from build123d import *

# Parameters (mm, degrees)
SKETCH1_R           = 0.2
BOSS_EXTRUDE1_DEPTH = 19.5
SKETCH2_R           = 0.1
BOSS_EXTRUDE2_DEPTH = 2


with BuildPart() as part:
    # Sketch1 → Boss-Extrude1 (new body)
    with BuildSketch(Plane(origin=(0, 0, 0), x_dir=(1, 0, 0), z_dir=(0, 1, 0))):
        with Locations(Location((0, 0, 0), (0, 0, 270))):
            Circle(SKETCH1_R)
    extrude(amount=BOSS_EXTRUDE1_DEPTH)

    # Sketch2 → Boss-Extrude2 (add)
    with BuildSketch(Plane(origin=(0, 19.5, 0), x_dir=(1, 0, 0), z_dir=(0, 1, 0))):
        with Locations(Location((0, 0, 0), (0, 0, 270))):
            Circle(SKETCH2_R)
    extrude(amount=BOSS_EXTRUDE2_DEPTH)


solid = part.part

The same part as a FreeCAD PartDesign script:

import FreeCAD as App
import Part
import Sketcher

V = App.Vector

doc = App.newDocument("Part")
body = doc.addObject("PartDesign::Body", "Body")

# Sketch on XZ plane
sketch1 = body.newObject("Sketcher::SketchObject", "Sketch")
sketch1.AttachmentSupport = (doc.getObject("XZ_Plane"), [""])
sketch1.MapMode = "FlatFace"
sketch1.addGeometry(Part.Circle(V(0, 0, 0), V(0, 0, 1), 0.2), False)
sketch1.addConstraint([
    Sketcher.Constraint("Coincident", 0, 3, -1, 1),
    Sketcher.Constraint("Diameter", 0, 0.4),
])
pad1 = body.newObject("PartDesign::Pad", "Pad")
pad1.Profile = sketch1
pad1.Length = 19.5
pad1.Reversed = True

# Sketch on XZ plane
sketch2 = body.newObject("Sketcher::SketchObject", "Sketch001")
sketch2.AttachmentSupport = (doc.getObject("XZ_Plane"), [""])
sketch2.MapMode = "FlatFace"
sketch2.AttachmentOffset = App.Placement(V(0, 0, -19.5), App.Rotation())
sketch2.addGeometry(Part.Circle(V(0, 0, 0), V(0, 0, 1), 0.1), False)
sketch2.addConstraint([
    Sketcher.Constraint("Coincident", 0, 3, -1, 1),
    Sketcher.Constraint("Diameter", 0, 0.2),
])
pad2 = body.newObject("PartDesign::Pad", "Pad001")
pad2.Profile = sketch2
pad2.Length = 2
pad2.Reversed = True

doc.recompute()
